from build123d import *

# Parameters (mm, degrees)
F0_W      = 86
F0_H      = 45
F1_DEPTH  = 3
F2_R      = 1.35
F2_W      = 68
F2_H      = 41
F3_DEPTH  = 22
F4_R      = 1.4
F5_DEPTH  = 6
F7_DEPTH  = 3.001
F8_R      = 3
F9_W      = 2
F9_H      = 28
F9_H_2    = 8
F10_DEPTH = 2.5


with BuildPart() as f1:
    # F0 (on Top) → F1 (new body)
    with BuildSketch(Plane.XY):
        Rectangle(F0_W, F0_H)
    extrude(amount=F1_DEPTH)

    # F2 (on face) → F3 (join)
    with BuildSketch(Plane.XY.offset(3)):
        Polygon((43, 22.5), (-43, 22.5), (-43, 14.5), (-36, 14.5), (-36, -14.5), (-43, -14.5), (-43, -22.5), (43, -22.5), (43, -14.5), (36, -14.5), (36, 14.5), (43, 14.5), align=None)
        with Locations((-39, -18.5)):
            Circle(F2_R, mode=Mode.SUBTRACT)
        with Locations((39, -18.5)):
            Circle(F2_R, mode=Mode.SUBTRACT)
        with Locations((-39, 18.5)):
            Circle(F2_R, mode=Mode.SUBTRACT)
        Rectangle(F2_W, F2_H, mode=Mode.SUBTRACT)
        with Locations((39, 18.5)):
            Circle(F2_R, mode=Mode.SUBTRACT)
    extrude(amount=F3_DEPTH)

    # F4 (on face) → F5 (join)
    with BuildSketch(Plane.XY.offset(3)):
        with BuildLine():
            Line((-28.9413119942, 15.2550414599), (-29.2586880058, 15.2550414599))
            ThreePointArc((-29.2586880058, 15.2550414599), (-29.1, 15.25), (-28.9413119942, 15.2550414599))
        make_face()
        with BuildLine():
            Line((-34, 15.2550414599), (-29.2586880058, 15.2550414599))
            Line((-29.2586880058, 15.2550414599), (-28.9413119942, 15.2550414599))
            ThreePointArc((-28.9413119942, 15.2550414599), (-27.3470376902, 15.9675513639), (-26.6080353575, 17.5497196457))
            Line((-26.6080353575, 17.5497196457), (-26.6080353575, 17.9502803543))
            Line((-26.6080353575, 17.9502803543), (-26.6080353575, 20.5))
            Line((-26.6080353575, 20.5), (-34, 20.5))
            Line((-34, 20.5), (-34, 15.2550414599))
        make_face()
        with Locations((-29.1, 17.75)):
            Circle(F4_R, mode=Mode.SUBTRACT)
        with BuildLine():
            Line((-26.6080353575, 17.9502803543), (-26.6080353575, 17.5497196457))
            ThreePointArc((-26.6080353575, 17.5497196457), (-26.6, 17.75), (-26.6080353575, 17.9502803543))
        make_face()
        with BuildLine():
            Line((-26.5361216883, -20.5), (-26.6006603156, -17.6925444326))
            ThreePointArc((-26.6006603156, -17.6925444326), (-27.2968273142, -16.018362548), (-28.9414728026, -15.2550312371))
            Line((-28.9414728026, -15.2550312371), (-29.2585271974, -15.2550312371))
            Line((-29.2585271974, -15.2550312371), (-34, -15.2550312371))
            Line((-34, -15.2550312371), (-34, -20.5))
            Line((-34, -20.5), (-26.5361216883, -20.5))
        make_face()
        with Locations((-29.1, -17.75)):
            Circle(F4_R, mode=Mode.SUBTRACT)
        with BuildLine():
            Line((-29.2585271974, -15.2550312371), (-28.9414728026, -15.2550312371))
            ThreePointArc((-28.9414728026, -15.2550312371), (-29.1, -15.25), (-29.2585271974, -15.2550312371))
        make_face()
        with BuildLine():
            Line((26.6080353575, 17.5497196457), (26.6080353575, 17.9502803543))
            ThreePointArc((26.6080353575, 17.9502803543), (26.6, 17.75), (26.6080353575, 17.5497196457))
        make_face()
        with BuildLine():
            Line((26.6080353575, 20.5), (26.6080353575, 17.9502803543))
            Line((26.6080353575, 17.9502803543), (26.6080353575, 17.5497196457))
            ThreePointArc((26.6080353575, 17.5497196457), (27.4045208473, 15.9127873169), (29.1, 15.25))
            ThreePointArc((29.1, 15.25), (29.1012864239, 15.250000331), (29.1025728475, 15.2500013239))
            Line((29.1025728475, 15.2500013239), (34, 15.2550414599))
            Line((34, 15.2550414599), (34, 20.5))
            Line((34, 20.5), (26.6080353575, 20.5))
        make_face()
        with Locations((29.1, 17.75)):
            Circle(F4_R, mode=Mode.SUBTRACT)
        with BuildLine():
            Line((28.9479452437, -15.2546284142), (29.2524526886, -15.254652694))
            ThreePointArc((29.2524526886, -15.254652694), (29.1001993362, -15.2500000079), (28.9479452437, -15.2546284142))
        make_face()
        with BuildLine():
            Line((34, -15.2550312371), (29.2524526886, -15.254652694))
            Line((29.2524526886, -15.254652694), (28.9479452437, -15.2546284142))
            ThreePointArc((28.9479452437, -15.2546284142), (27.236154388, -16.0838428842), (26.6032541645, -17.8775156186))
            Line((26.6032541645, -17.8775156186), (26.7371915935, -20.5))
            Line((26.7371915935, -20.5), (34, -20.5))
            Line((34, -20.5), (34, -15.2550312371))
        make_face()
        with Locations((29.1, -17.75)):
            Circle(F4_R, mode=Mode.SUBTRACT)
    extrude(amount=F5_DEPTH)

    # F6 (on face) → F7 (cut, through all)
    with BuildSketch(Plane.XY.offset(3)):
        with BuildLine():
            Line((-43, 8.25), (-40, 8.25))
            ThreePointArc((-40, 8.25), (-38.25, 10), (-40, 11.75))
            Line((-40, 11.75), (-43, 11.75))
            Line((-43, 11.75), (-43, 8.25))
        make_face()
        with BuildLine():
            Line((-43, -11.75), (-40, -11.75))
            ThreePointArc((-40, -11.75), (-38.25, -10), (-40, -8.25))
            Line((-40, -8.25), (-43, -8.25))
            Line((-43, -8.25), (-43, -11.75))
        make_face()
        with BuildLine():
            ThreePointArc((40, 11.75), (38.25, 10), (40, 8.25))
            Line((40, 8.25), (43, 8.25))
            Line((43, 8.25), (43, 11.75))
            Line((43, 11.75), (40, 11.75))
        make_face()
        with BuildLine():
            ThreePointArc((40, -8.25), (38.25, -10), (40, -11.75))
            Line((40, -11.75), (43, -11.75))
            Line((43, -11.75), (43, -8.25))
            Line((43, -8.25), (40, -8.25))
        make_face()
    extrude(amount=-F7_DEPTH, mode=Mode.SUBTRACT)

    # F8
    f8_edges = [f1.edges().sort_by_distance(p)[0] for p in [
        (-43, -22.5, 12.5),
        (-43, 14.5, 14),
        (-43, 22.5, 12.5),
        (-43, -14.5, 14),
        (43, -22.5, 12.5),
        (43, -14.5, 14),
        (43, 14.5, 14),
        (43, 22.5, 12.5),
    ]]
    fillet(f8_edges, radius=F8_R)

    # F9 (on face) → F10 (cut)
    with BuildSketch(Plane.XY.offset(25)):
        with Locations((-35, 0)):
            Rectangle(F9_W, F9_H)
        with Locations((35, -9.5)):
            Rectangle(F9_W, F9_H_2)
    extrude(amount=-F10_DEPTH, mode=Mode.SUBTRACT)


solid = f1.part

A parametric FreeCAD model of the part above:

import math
import FreeCAD as App
import Part
import Sketcher


def edges_at(feature, points):
    """Names of the edges that pass closest to the given points."""
    edges = feature.Shape.Edges
    near = lambda p: min(range(len(edges)), key=lambda i: edges[i].distToShape(Part.Vertex(*p))[0])
    return sorted({f"Edge{near(p) + 1}" for p in points})


def add_polygon(sketch, points):
    """Adds a closed chain of lines whose ends are joined by coincident constraints."""
    first, n = sketch.GeometryCount, len(points)
    for a, b in zip(points, points[1:] + points[:1]):
        sketch.addGeometry(Part.LineSegment(App.Vector(*a, 0), App.Vector(*b, 0)), False)
    for i in range(n):
        sketch.addConstraint(Sketcher.Constraint("Coincident", first + i, 2, first + (i + 1) % n, 1))

doc = App.newDocument("Part")
body = doc.addObject("PartDesign::Body", "Body")

# Sketch on XY plane
sketch1 = body.newObject("Sketcher::SketchObject", "Sketch")
sketch1.AttachmentSupport = (doc.getObject("XY_Plane"), [""])
sketch1.MapMode = "FlatFace"
add_polygon(sketch1, [(-43, 22), (-43, -22), (43, -22), (43, 22)])  # lines 0-3
sketch1.addConstraint([
    Sketcher.Constraint("Vertical", 0),
    Sketcher.Constraint("Horizontal", 1),
    Sketcher.Constraint("Vertical", 2),
    Sketcher.Constraint("Horizontal", 3),
    Sketcher.Constraint("Symmetric", 0, 2, 2, 2, -1, 1),
    Sketcher.Constraint("DistanceX", 1, 1, 1, 2, 86.0),
    Sketcher.Constraint("DistanceY", 0, 2, 0, 1, 45.0),
])
pad1 = body.newObject("PartDesign::Pad", "Pad")
pad1.Profile = sketch1
pad1.Length = 3

# Sketch on XY plane
sketch2 = body.newObject("Sketcher::SketchObject", "Sketch001")
sketch2.AttachmentSupport = (doc.getObject("XY_Plane"), [""])
sketch2.MapMode = "FlatFace"
sketch2.AttachmentOffset = App.Placement(App.Vector(0, 0, 3), App.Rotation())
add_polygon(sketch2, [(43, 22.5), (-43, 22.5), (-43, 14.5), (-36, 14.5), (-36, -14.5), (-43, -14.5), (-43, -22.5), (43, -22.5), (43, -14.5), (36, -14.5), (36, 14.5), (43, 14.5)])  # lines 0-11
sketch2.addGeometry(Part.Circle(App.Vector(-39, -18.5, 0), App.Vector(0, 0, 1), 1.4), False)  # 12
sketch2.addGeometry(Part.Circle(App.Vector(39, -18.5, 0), App.Vector(0, 0, 1), 1.4), False)  # 13
add_polygon(sketch2, [(34, -20.5), (-34, -20.5), (-34, 20.5), (34, 20.5)])  # lines 14-17
sketch2.addGeometry(Part.Circle(App.Vector(-39, 18.5, 0), App.Vector(0, 0, 1), 1.4), False)  # 18
sketch2.addGeometry(Part.Circle(App.Vector(39, 18.5, 0), App.Vector(0, 0, 1), 1.4), False)  # 19
sketch2.addConstraint([
    Sketcher.Constraint("Horizontal", 0),
    Sketcher.Constraint("Vertical", 1),
    Sketcher.Constraint("Horizontal", 2),
    Sketcher.Constraint("Vertical", 3),
    Sketcher.Constraint("Horizontal", 4),
    Sketcher.Constraint("Vertical", 5),
    Sketcher.Constraint("Horizontal", 6),
    Sketcher.Constraint("Vertical", 7),
    Sketcher.Constraint("Horizontal", 8),
    Sketcher.Constraint("Vertical", 9),
    Sketcher.Constraint("Horizontal", 10),
    Sketcher.Constraint("Vertical", 11),
    Sketcher.Constraint("Horizontal", 14),
    Sketcher.Constraint("Vertical", 15),
    Sketcher.Constraint("Horizontal", 16),
    Sketcher.Constraint("Vertical", 17),
    Sketcher.Constraint("Equal", 12, 13),
    Sketcher.Constraint("Equal", 13, 18),
    Sketcher.Constraint("Equal", 18, 19),
    Sketcher.Constraint("Symmetric", 13, 3, 18, 3, -1, 1),
    Sketcher.Constraint("Symmetric", 12, 3, 19, 3, -1, 1),
    Sketcher.Constraint("Symmetric", 0, 2, 6, 2, -1, 1),
    Sketcher.Constraint("Symmetric", 2, 2, 8, 2, -1, 1),
    Sketcher.Constraint("Symmetric", 4, 2, 10, 2, -1, 1),
    Sketcher.Constraint("Symmetric", 14, 2, 16, 2, -1, 1),
    Sketcher.Constraint("Symmetric", 12, 3, 13, 3, -2),
    Sketcher.Constraint("Symmetric", 4, 2, 7, 2, -2),
    Sketcher.Constraint("Diameter", 12, 2.7),
    Sketcher.Constraint("DistanceX", 0, 2, 0, 1, 86.0),
    Sketcher.Constraint("DistanceX", 2, 1, 2, 2, 7.0),
    Sketcher.Constraint("DistanceX", 14, 2, 14, 1, 68.0),
    Sketcher.Constraint("DistanceY", 1, 2, 1, 1, 8.0),
    Sketcher.Constraint("DistanceY", 3, 2, 3, 1, 29.0),
    Sketcher.Constraint("DistanceY", 15, 1, 15, 2, 41.0),
    Sketcher.Constraint("DistanceX", 12, 3, -1, 1, 39.0),
    Sketcher.Constraint("DistanceY", 12, 3, 18, 3, 37.0),
])
pad2 = body.newObject("PartDesign::Pad", "Pad001")
pad2.Profile = sketch2
pad2.Length = 22

# Sketch on XY plane
sketch3 = body.newObject("Sketcher::SketchObject", "Sketch002")
sketch3.AttachmentSupport = (doc.getObject("XY_Plane"), [""])
sketch3.MapMode = "FlatFace"
sketch3.AttachmentOffset = App.Placement(App.Vector(0, 0, 3), App.Rotation())
sketch3.addGeometry([
    Part.ArcOfCircle(Part.Circle(App.Vector(-29.1, 17.75, 0), App.Vector(0, 0, 1), 2.5), math.radians(-93.64), math.radians(-86.36)),  # 0
    Part.ArcOfCircle(Part.Circle(App.Vector(-29.1, 17.75, 0), App.Vector(0, 0, 1), 2.5), math.radians(-86), math.radians(-5)),  # 1
    Part.ArcOfCircle(Part.Circle(App.Vector(-29.1, 17.75, 0), App.Vector(0, 0, 1), 2.5), math.radians(-4.6), math.radians(4.6)),  # 2
    Part.LineSegment(App.Vector(-26.608, 17.9503, 0), App.Vector(-26.608, 20.5, 0)),  # 3
    Part.LineSegment(App.Vector(-26.608, 20.5, 0), App.Vector(-34, 20.5, 0)),  # 4
    Part.LineSegment(App.Vector(-34, 20.5, 0), App.Vector(-34, 15.255, 0)),  # 5
    Part.LineSegment(App.Vector(-34, 15.255, 0), App.Vector(-29.2587, 15.255, 0)),  # 6
    Part.Circle(App.Vector(-29.1, 17.75, 0), App.Vector(0, 0, 1), 1.4),  # 7
    Part.LineSegment(App.Vector(-26.5361, -20.5, 0), App.Vector(-26.6007, -17.6925, 0)),  # 8
    Part.ArcOfCircle(Part.Circle(App.Vector(-29.1, -17.75, 0), App.Vector(0, 0, 1), 2.5), math.radians(1), math.radians(86)),  # 9
    Part.ArcOfCircle(Part.Circle(App.Vector(-29.1, -17.75, 0), App.Vector(0, 0, 1), 2.5), math.radians(86.36), math.radians(93.64)),  # 10
    Part.LineSegment(App.Vector(-29.2585, -15.255, 0), App.Vector(-34, -15.255, 0)),  # 11
    Part.LineSegment(App.Vector(-34, -15.255, 0), App.Vector(-34, -20.5, 0)),  # 12
    Part.LineSegment(App.Vector(-34, -20.5, 0), App.Vector(-26.5361, -20.5, 0)),  # 13
    Part.Circle(App.Vector(-29.1, -17.75, 0), App.Vector(0, 0, 1), 1.4),  # 14
    Part.ArcOfCircle(Part.Circle(App.Vector(29.1, 17.75, 0), App.Vector(0, 0, 1), 2.5), math.radians(175.4), math.radians(184.6)),  # 15
    Part.ArcOfCircle(Part.Circle(App.Vector(29.1, 17.75, 0), App.Vector(0, 0, 1), 2.5), math.radians(-175), math.radians(-90)),  # 16
    Part.ArcOfCircle(Part.Circle(App.Vector(29.1, 17.7502, 0), App.Vector(0, 0, 1), 2.5002), math.radians(-90), math.radians(-89.94)),  # 17
    Part.LineSegment(App.Vector(29.1026, 15.25, 0), App.Vector(34, 15.255, 0)),  # 18
    Part.LineSegment(App.Vector(34, 15.255, 0), App.Vector(34, 20.5, 0)),  # 19
    Part.LineSegment(App.Vector(34, 20.5, 0), App.Vector(26.608, 20.5, 0)),  # 20
    Part.LineSegment(App.Vector(26.608, 20.5, 0), App.Vector(26.608, 17.9503, 0)),  # 21
    Part.Circle(App.Vector(29.1, 17.75, 0), App.Vector(0, 0, 1), 1.4),  # 22
    Part.ArcOfCircle(Part.Circle(App.Vector(29.1, -17.75, 0), App.Vector(0, 0, 1), 2.5), math.radians(86.5), math.radians(93.49)),  # 23
    Part.ArcOfCircle(Part.Circle(App.Vector(29.1, -17.75, 0), App.Vector(0, 0, 1), 2.5), math.radians(93), math.radians(183)),  # 24
    Part.LineSegment(App.Vector(26.6033, -17.8775, 0), App.Vector(26.7372, -20.5, 0)),  # 25
    Part.LineSegment(App.Vector(26.7372, -20.5, 0), App.Vector(34, -20.5, 0)),  # 26
    Part.LineSegment(App.Vector(34, -20.5, 0), App.Vector(34, -15.255, 0)),  # 27
    Part.LineSegment(App.Vector(34, -15.255, 0), App.Vector(29.2525, -15.2547, 0)),  # 28
    Part.Circle(App.Vector(29.1, -17.75, 0), App.Vector(0, 0, 1), 1.4),  # 29
], False)
sketch3.addConstraint([
    Sketcher.Constraint("Tangent", 0, 2, 1, 1),
    Sketcher.Constraint("Tangent", 1, 2, 2, 1),
    Sketcher.Constraint("Coincident", 2, 2, 3, 1),
    Sketcher.Constraint("Coincident", 3, 2, 4, 1),
    Sketcher.Constraint("Coincident", 4, 2, 5, 1),
    Sketcher.Constraint("Coincident", 5, 2, 6, 1),
    Sketcher.Constraint("Coincident", 6, 2, 0, 1),
    Sketcher.Constraint("Tangent", 8, 2, 9, 1),
    Sketcher.Constraint("Tangent", 9, 2, 10, 1),
    Sketcher.Constraint("Coincident", 10, 2, 11, 1),
    Sketcher.Constraint("Coincident", 11, 2, 12, 1),
    Sketcher.Constraint("Coincident", 12, 2, 13, 1),
    Sketcher.Constraint("Coincident", 13, 2, 8, 1),
    Sketcher.Constraint("Tangent", 15, 2, 16, 1),
    Sketcher.Constraint("Tangent", 16, 2, 17, 1),
    Sketcher.Constraint("Tangent", 17, 2, 18, 1),
    Sketcher.Constraint("Coincident", 18, 2, 19, 1),
    Sketcher.Constraint("Coincident", 19, 2, 20, 1),
    Sketcher.Constraint("Coincident", 20, 2, 21, 1),
    Sketcher.Constraint("Coincident", 21, 2, 15, 1),
    Sketcher.Constraint("Tangent", 23, 2, 24, 1),
    Sketcher.Constraint("Tangent", 24, 2, 25, 1),
    Sketcher.Constraint("Coincident", 25, 2, 26, 1),
    Sketcher.Constraint("Coincident", 26, 2, 27, 1),
    Sketcher.Constraint("Coincident", 27, 2, 28, 1),
    Sketcher.Constraint("Coincident", 28, 2, 23, 1),
    Sketcher.Constraint("Vertical", 3),
    Sketcher.Constraint("Horizontal", 4),
    Sketcher.Constraint("Vertical", 5),
    Sketcher.Constraint("Horizontal", 6),
    Sketcher.Constraint("Horizontal", 11),
    Sketcher.Constraint("Vertical", 12),
    Sketcher.Constraint("Horizontal", 13),
    Sketcher.Constraint("Vertical", 19),
    Sketcher.Constraint("Horizontal", 20),
    Sketcher.Constraint("Vertical", 21),
    Sketcher.Constraint("Horizontal", 26),
    Sketcher.Constraint("Vertical", 27),
    Sketcher.Constraint("Coincident", 2, 3, 0, 3),
    Sketcher.Constraint("Coincident", 7, 3, 0, 3),
    Sketcher.Constraint("Coincident", 14, 3, 9, 3),
    Sketcher.Constraint("Coincident", 22, 3, 15, 3),
    Sketcher.Constraint("Coincident", 29, 3, 23, 3),
    Sketcher.Constraint("Equal", 2, 9),
    Sketcher.Constraint("Equal", 9, 10),
    Sketcher.Constraint("Equal", 7, 14),
    Sketcher.Constraint("Equal", 10, 15),
    Sketcher.Constraint("Equal", 15, 16),
    Sketcher.Constraint("Equal", 14, 22),
    Sketcher.Constraint("Equal", 16, 23),
    Sketcher.Constraint("Equal", 23, 24),
    Sketcher.Constraint("Equal", 22, 29),
    Sketcher.Constraint("Symmetric", 9, 3, 15, 3, -1, 1),
    Sketcher.Constraint("Symmetric", 0, 3, 23, 3, -1, 1),
    Sketcher.Constraint("Symmetric", 12, 2, 19, 2, -1, 1),
    Sketcher.Constraint("Symmetric", 4, 2, 26, 2, -1, 1),
    Sketcher.Constraint("Symmetric", 0, 3, 15, 3, -2),
    Sketcher.Constraint("Symmetric", 5, 2, 18, 2, -2),
    Sketcher.Constraint("Symmetric", 3, 2, 20, 2, -2),
    Sketcher.Constraint("Horizontal", 0, 2, 5, 2),
    Sketcher.Constraint("Horizontal", 9, 2, 10, 2),
    Sketcher.Constraint("Horizontal", 1, 2, 15, 2),
    Sketcher.Constraint("Horizontal", 11, 2, 27, 2),
    Sketcher.Constraint("Vertical", 1, 2, 2, 2),
    Sketcher.Constraint("Vertical", 29, 3, 16, 2),
    Sketcher.Constraint("Diameter", 7, 2.8),
    Sketcher.Constraint("Radius", 0, 2.5),
    Sketcher.Constraint("DistanceX", 4, 2, -1, 1, 34.0),
    Sketcher.Constraint("DistanceX", 0, 3, -1, 1, 29.1),
    Sketcher.Constraint("DistanceY", -1, 1, 3, 2, 20.5),
    Sketcher.Constraint("DistanceY", 9, 3, 0, 3, 35.5),
    Sketcher.Constraint("Radius", 17, 2.500206),
    Sketcher.Constraint("DistanceX", 6, 1, 6, 2, 4.741312),
    Sketcher.Constraint("DistanceX", 13, 1, 13, 2, 7.463878),
    Sketcher.Constraint("DistanceX", 26, 1, 26, 2, 7.262808),
    Sketcher.Constraint("DistanceY", 3, 1, 3, 2, 2.54972),
    Sketcher.Constraint("DistanceY", 12, 2, 12, 1, 5.244969),
    Sketcher.Constraint("DistanceX", 24, 2, 28, 2, 2.649199),
    Sketcher.Constraint("DistanceY", 23, 2, -1, 1, 15.254628),
])
pad3 = body.newObject("PartDesign::Pad", "Pad002")
pad3.Profile = sketch3
pad3.Length = 6

# Sketch on XY plane
sketch4 = body.newObject("Sketcher::SketchObject", "Sketch003")
sketch4.AttachmentSupport = (doc.getObject("XY_Plane"), [""])
sketch4.MapMode = "FlatFace"
sketch4.AttachmentOffset = App.Placement(App.Vector(0, 0, 3), App.Rotation())
sketch4.addGeometry([
    Part.LineSegment(App.Vector(-43, 8.2, 0), App.Vector(-40, 8.2, 0)),  # 0
    Part.ArcOfCircle(Part.Circle(App.Vector(-40, 10, 0), App.Vector(0, 0, 1), 1.8), math.radians(-90), math.radians(90)),  # 1
    Part.LineSegment(App.Vector(-40, 11.8, 0), App.Vector(-43, 11.8, 0)),  # 2
    Part.LineSegment(App.Vector(-43, 11.8, 0), App.Vector(-43, 8.2, 0)),  # 3
    Part.LineSegment(App.Vector(-43, -11.8, 0), App.Vector(-40, -11.8, 0)),  # 4
    Part.ArcOfCircle(Part.Circle(App.Vector(-40, -10, 0), App.Vector(0, 0, 1), 1.8), math.radians(-90), math.radians(90)),  # 5
    Part.LineSegment(App.Vector(-40, -8.2, 0), App.Vector(-43, -8.2, 0)),  # 6
    Part.LineSegment(App.Vector(-43, -8.2, 0), App.Vector(-43, -11.8, 0)),  # 7
    Part.ArcOfCircle(Part.Circle(App.Vector(40, 10, 0), App.Vector(0, 0, 1), 1.8), math.radians(90), math.radians(270)),  # 8
    Part.LineSegment(App.Vector(40, 8.2, 0), App.Vector(43, 8.2, 0)),  # 9
    Part.LineSegment(App.Vector(43, 8.2, 0), App.Vector(43, 11.8, 0)),  # 10
    Part.LineSegment(App.Vector(43, 11.8, 0), App.Vector(40, 11.8, 0)),  # 11
    Part.ArcOfCircle(Part.Circle(App.Vector(40, -10, 0), App.Vector(0, 0, 1), 1.8), math.radians(90), math.radians(270)),  # 12
    Part.LineSegment(App.Vector(40, -11.8, 0), App.Vector(43, -11.8, 0)),  # 13
    Part.LineSegment(App.Vector(43, -11.8, 0), App.Vector(43, -8.2, 0)),  # 14
    Part.LineSegment(App.Vector(43, -8.2, 0), App.Vector(40, -8.2, 0)),  # 15
], False)
sketch4.addConstraint([
    Sketcher.Constraint("Tangent", 0, 2, 1, 1),
    Sketcher.Constraint("Tangent", 1, 2, 2, 1),
    Sketcher.Constraint("Coincident", 2, 2, 3, 1),
    Sketcher.Constraint("Coincident", 3, 2, 0, 1),
    Sketcher.Constraint("Tangent", 4, 2, 5, 1),
    Sketcher.Constraint("Tangent", 5, 2, 6, 1),
    Sketcher.Constraint("Coincident", 6, 2, 7, 1),
    Sketcher.Constraint("Coincident", 7, 2, 4, 1),
    Sketcher.Constraint("Tangent", 8, 2, 9, 1),
    Sketcher.Constraint("Coincident", 9, 2, 10, 1),
    Sketcher.Constraint("Coincident", 10, 2, 11, 1),
    Sketcher.Constraint("Tangent", 11, 2, 8, 1),
    Sketcher.Constraint("Tangent", 12, 2, 13, 1),
    Sketcher.Constraint("Coincident", 13, 2, 14, 1),
    Sketcher.Constraint("Coincident", 14, 2, 15, 1),
    Sketcher.Constraint("Tangent", 15, 2, 12, 1),
    Sketcher.Constraint("Horizontal", 0),
    Sketcher.Constraint("Horizontal", 2),
    Sketcher.Constraint("Vertical", 3),
    Sketcher.Constraint("Horizontal", 4),
    Sketcher.Constraint("Horizontal", 6),
    Sketcher.Constraint("Vertical", 7),
    Sketcher.Constraint("Horizontal", 9),
    Sketcher.Constraint("Vertical", 10),
    Sketcher.Constraint("Horizontal", 11),
    Sketcher.Constraint("Horizontal", 13),
    Sketcher.Constraint("Vertical", 14),
    Sketcher.Constraint("Horizontal", 15),
    Sketcher.Constraint("Equal", 1, 5),
    Sketcher.Constraint("Equal", 5, 8),
    Sketcher.Constraint("Equal", 8, 12),
    Sketcher.Constraint("Symmetric", 5, 3, 8, 3, -1, 1),
    Sketcher.Constraint("Symmetric", 1, 3, 12, 3, -1, 1),
    Sketcher.Constraint("Symmetric", 1, 3, 8, 3, -2),
    Sketcher.Constraint("Vertical", 3, 2, 6, 2),
    Sketcher.Constraint("Vertical", 10, 2, 13, 2),
    Sketcher.Constraint("Equal", 6, 9),
    Sketcher.Constraint("DistanceX", 0, 1, 0, 2, 3.0),
    Sketcher.Constraint("Radius", 1, 1.75),
    Sketcher.Constraint("DistanceX", 1, 3, -1, 1, 40.0),
    Sketcher.Constraint("DistanceY", -1, 1, 1, 3, 10.0),
])
pocket1 = body.newObject("PartDesign::Pocket", "Pocket")
pocket1.Profile = sketch4
pocket1.Type = "ThroughAll"
doc.recompute()

fillet = body.newObject("PartDesign::Fillet", "Fillet")
fillet.Base = (pocket1, edges_at(pocket1, [
    (-43, -22.5, 12.5),
    (-43, 14.5, 14),
    (-43, 22.5, 12.5),
    (-43, -14.5, 14),
    (43, -22.5, 12.5),
    (43, -14.5, 14),
    (43, 14.5, 14),
    (43, 22.5, 12.5),
]))
fillet.Radius = 3

# Sketch on XY plane
sketch5 = body.newObject("Sketcher::SketchObject", "Sketch004")
sketch5.AttachmentSupport = (doc.getObject("XY_Plane"), [""])
sketch5.MapMode = "FlatFace"
sketch5.AttachmentOffset = App.Placement(App.Vector(0, 0, 25), App.Rotation())
add_polygon(sketch5, [(-36, 14), (-36, -14), (-34, -14), (-34, 14)])  # lines 0-3
add_polygon(sketch5, [(34, -5.5), (34, -13.5), (36, -13.5), (36, -5.5)])  # lines 4-7
sketch5.addConstraint([
    Sketcher.Constraint("Vertical", 0),
    Sketcher.Constraint("Horizontal", 1),
    Sketcher.Constraint("Vertical", 2),
    Sketcher.Constraint("Horizontal", 3),
    Sketcher.Constraint("Vertical", 4),
    Sketcher.Constraint("Horizontal", 5),
    Sketcher.Constraint("Vertical", 6),
    Sketcher.Constraint("Horizontal", 7),
    Sketcher.Constraint("Equal", 3, 5),
    Sketcher.Constraint("DistanceX", 1, 1, 1, 2, 2.0),
    Sketcher.Constraint("DistanceY", 0, 2, 0, 1, 28.0),
    Sketcher.Constraint("DistanceY", 4, 2, 4, 1, 8.0),
    Sketcher.Constraint("DistanceX", 0, 2, -1, 1, 36.0),
    Sketcher.Constraint("DistanceY", 0, 2, -1, 1, 14.0),
    Sketcher.Constraint("DistanceX", -1, 1, 4, 2, 34.0),
    Sketcher.Constraint("DistanceY", 4, 2, -1, 1, 13.5),
])
pocket2 = body.newObject("PartDesign::Pocket", "Pocket001")
pocket2.Profile = sketch5
pocket2.Length = 2.5

doc.recompute()
